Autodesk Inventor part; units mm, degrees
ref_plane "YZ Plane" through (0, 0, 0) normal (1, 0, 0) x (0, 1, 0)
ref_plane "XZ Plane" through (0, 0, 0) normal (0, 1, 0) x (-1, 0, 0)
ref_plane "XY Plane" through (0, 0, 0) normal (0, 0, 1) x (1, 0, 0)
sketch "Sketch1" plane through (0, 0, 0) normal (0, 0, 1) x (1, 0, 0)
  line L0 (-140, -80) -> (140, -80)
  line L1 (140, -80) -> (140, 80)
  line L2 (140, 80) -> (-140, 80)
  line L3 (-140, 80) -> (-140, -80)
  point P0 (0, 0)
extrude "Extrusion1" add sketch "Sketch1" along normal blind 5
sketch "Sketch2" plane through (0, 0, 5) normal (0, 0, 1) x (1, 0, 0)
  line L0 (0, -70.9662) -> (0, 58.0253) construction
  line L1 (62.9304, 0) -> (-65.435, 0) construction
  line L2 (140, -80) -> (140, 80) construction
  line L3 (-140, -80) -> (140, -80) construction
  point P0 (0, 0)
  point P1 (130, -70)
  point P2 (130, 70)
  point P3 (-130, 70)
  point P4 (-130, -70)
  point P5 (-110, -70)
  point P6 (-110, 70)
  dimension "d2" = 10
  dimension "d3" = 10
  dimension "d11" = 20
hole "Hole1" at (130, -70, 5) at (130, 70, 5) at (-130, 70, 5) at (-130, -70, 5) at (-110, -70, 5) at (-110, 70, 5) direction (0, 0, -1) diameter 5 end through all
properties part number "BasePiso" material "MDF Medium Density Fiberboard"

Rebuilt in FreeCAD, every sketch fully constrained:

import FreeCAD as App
import Part
import Sketcher


def add_polygon(sketch, points):
    """Adds a closed chain of lines whose ends are joined by coincident constraints."""
    first, n = sketch.GeometryCount, len(points)
    for a, b in zip(points, points[1:] + points[:1]):
        sketch.addGeometry(Part.LineSegment(App.Vector(*a, 0), App.Vector(*b, 0)), False)
    for i in range(n):
        sketch.addConstraint(Sketcher.Constraint("Coincident", first + i, 2, first + (i + 1) % n, 1))

doc = App.newDocument("Part")
body = doc.addObject("PartDesign::Body", "Body")

sketch1 = body.newObject("Sketcher::SketchObject", "Sketch")
sketch1.AttachmentSupport = (doc.getObject("XY_Plane"), [""])
sketch1.MapMode = "FlatFace"
add_polygon(sketch1, [(-140, 80), (-140, -80), (140, -80), (140, 80)])
sketch1.addConstraint([
    Sketcher.Constraint("Vertical", 0),
    Sketcher.Constraint("Horizontal", 1),
    Sketcher.Constraint("Vertical", 2),
    Sketcher.Constraint("Horizontal", 3),
    Sketcher.Constraint("Symmetric", 0, 2, 2, 2, -1, 1),
    Sketcher.Constraint("DistanceX", 1, 1, 1, 2, 280.0),
    Sketcher.Constraint("DistanceY", 0, 2, 0, 1, 160.0),
])
pad1 = body.newObject("PartDesign::Pad", "Pad")
pad1.Profile = sketch1
pad1.Length = 5

sketch2 = body.newObject("Sketcher::SketchObject", "Sketch001")
sketch2.AttachmentSupport = (doc.getObject("XY_Plane"), [""])
sketch2.MapMode = "FlatFace"
sketch2.AttachmentOffset = App.Placement(App.Vector(0, 0, 5), App.Rotation())
sketch2.addGeometry([
    Part.Circle(App.Vector(130, -70, 0), App.Vector(0, 0, 1), 2.5),
    Part.Circle(App.Vector(130, 70, 0), App.Vector(0, 0, 1), 2.5),
    Part.Circle(App.Vector(-130, 70, 0), App.Vector(0, 0, 1), 2.5),
    Part.Circle(App.Vector(-130, -70, 0), App.Vector(0, 0, 1), 2.5),
    Part.Circle(App.Vector(-110, -70, 0), App.Vector(0, 0, 1), 2.5),
    Part.Circle(App.Vector(-110, 70, 0), App.Vector(0, 0, 1), 2.5),
], False)
sketch2.addConstraint([
    Sketcher.Constraint("Equal", 0, 1),
    Sketcher.Constraint("Equal", 1, 2),
    Sketcher.Constraint("Equal", 2, 3),
    Sketcher.Constraint("Equal", 3, 4),
    Sketcher.Constraint("Equal", 4, 5),
    Sketcher.Constraint("Symmetric", 0, 3, 2, 3, -1, 1),
    Sketcher.Constraint("Symmetric", 1, 3, 3, 3, -1, 1),
    Sketcher.Constraint("Symmetric", 1, 3, 2, 3, -2),
    Sketcher.Constraint("Symmetric", 4, 3, 5, 3, -1),
    Sketcher.Constraint("Horizontal", 3, 3, 4, 3),
    Sketcher.Constraint("Diameter", 0, 5.0),
    Sketcher.Constraint("DistanceX", -1, 1, 0, 3, 130.0),
    Sketcher.Constraint("DistanceY", 0, 3, -1, 1, 70.0),
    Sketcher.Constraint("DistanceX", 4, 3, -1, 1, 110.0),
])
doc.recompute()
hole = body.newObject("PartDesign::Hole", "Hole")
hole.Profile = sketch2
hole.ThreadType = "None"
hole.Diameter = 5
hole.DepthType = "ThroughAll"

doc.recompute()
